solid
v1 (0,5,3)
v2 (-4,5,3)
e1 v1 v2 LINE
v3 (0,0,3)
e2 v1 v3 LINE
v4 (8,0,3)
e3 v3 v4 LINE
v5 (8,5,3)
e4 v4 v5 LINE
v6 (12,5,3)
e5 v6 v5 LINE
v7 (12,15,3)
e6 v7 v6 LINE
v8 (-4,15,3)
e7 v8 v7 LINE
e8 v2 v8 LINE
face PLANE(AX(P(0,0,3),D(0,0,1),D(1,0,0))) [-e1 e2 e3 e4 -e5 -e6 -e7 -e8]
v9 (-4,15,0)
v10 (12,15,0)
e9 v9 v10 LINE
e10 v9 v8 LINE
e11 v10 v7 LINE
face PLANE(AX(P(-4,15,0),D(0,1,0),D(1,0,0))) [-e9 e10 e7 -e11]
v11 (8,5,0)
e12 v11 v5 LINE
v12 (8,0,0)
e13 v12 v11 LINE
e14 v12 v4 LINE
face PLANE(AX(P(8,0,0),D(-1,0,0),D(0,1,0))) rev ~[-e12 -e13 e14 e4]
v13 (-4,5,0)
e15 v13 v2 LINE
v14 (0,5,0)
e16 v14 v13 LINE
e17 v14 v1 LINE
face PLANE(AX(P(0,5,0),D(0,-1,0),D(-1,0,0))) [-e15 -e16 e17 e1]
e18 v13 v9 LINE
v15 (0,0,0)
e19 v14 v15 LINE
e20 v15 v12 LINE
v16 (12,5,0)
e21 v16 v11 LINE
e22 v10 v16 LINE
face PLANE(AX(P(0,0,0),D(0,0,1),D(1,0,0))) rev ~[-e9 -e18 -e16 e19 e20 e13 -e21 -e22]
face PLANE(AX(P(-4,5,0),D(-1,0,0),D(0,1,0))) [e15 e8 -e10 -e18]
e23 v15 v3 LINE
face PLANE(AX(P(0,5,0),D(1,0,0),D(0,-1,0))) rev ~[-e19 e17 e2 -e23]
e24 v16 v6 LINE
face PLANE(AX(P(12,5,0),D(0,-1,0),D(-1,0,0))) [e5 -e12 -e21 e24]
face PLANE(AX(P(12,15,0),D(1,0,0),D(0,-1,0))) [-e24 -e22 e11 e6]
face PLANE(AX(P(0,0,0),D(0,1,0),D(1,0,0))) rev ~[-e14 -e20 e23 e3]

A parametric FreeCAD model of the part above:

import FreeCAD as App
import Part
import Sketcher
Q = App.Units.Quantity

doc = App.newDocument("Part")
body = doc.addObject("PartDesign::Body", "Body")

# Sketch on XY plane
sketch1 = body.newObject("Sketcher::SketchObject", "Sketch")
sketch1.AttachmentSupport = (doc.getObject("XY_Plane"), [""])
sketch1.MapMode = "FlatFace"
sketch1.addGeometry(Part.LineSegment(App.Vector(0, 5, 0), App.Vector(0, 0, 0)), False)
sketch1.addGeometry(Part.LineSegment(App.Vector(0, 0, 0), App.Vector(8, 0, 0)), False)
sketch1.addGeometry(Part.LineSegment(App.Vector(8, 0, 0), App.Vector(8, 5, 0)), False)
sketch1.addGeometry(Part.LineSegment(App.Vector(8, 5, 0), App.Vector(12, 5, 0)), False)
sketch1.addGeometry(Part.LineSegment(App.Vector(12, 5, 0), App.Vector(12, 15, 0)), False)
sketch1.addGeometry(Part.LineSegment(App.Vector(12, 15, 0), App.Vector(-4, 15, 0)), False)
sketch1.addGeometry(Part.LineSegment(App.Vector(-4, 15, 0), App.Vector(-4, 5, 0)), False)
sketch1.addGeometry(Part.LineSegment(App.Vector(-4, 5, 0), App.Vector(0, 5, 0)), False)
sketch1.addConstraint(Sketcher.Constraint("Coincident", 0, 2, 1, 1))
sketch1.addConstraint(Sketcher.Constraint("Coincident", 1, 2, 2, 1))
sketch1.addConstraint(Sketcher.Constraint("Coincident", 2, 2, 3, 1))
sketch1.addConstraint(Sketcher.Constraint("Coincident", 3, 2, 4, 1))
sketch1.addConstraint(Sketcher.Constraint("Coincident", 4, 2, 5, 1))
sketch1.addConstraint(Sketcher.Constraint("Coincident", 5, 2, 6, 1))
sketch1.addConstraint(Sketcher.Constraint("Coincident", 6, 2, 7, 1))
sketch1.addConstraint(Sketcher.Constraint("Coincident", 7, 2, 0, 1))
sketch1.addConstraint(Sketcher.Constraint("Vertical", 0))
sketch1.addConstraint(Sketcher.Constraint("Horizontal", 1))
sketch1.addConstraint(Sketcher.Constraint("Vertical", 2))
sketch1.addConstraint(Sketcher.Constraint("Horizontal", 3))
sketch1.addConstraint(Sketcher.Constraint("Vertical", 4))
sketch1.addConstraint(Sketcher.Constraint("Horizontal", 5))
sketch1.addConstraint(Sketcher.Constraint("Vertical", 6))
sketch1.addConstraint(Sketcher.Constraint("Horizontal", 7))
sketch1.addConstraint(Sketcher.Constraint("Coincident", 0, 2, -1, 1))
sketch1.addConstraint(Sketcher.Constraint("Horizontal", 3, 2, 6, 2))
sketch1.addConstraint(Sketcher.Constraint("Equal", 3, 7))
sketch1.addConstraint(Sketcher.Constraint("DistanceX", 1, 1, 1, 2, Q("8 mm")))
sketch1.addConstraint(Sketcher.Constraint("DistanceX", 3, 1, 3, 2, Q("4 mm")))
sketch1.addConstraint(Sketcher.Constraint("DistanceY", 0, 2, 0, 1, Q("5 mm")))
sketch1.addConstraint(Sketcher.Constraint("DistanceY", 4, 1, 4, 2, Q("10 mm")))
pad1 = body.newObject("PartDesign::Pad", "Pad")
pad1.Profile = sketch1
pad1.Length = 3

doc.recompute()
